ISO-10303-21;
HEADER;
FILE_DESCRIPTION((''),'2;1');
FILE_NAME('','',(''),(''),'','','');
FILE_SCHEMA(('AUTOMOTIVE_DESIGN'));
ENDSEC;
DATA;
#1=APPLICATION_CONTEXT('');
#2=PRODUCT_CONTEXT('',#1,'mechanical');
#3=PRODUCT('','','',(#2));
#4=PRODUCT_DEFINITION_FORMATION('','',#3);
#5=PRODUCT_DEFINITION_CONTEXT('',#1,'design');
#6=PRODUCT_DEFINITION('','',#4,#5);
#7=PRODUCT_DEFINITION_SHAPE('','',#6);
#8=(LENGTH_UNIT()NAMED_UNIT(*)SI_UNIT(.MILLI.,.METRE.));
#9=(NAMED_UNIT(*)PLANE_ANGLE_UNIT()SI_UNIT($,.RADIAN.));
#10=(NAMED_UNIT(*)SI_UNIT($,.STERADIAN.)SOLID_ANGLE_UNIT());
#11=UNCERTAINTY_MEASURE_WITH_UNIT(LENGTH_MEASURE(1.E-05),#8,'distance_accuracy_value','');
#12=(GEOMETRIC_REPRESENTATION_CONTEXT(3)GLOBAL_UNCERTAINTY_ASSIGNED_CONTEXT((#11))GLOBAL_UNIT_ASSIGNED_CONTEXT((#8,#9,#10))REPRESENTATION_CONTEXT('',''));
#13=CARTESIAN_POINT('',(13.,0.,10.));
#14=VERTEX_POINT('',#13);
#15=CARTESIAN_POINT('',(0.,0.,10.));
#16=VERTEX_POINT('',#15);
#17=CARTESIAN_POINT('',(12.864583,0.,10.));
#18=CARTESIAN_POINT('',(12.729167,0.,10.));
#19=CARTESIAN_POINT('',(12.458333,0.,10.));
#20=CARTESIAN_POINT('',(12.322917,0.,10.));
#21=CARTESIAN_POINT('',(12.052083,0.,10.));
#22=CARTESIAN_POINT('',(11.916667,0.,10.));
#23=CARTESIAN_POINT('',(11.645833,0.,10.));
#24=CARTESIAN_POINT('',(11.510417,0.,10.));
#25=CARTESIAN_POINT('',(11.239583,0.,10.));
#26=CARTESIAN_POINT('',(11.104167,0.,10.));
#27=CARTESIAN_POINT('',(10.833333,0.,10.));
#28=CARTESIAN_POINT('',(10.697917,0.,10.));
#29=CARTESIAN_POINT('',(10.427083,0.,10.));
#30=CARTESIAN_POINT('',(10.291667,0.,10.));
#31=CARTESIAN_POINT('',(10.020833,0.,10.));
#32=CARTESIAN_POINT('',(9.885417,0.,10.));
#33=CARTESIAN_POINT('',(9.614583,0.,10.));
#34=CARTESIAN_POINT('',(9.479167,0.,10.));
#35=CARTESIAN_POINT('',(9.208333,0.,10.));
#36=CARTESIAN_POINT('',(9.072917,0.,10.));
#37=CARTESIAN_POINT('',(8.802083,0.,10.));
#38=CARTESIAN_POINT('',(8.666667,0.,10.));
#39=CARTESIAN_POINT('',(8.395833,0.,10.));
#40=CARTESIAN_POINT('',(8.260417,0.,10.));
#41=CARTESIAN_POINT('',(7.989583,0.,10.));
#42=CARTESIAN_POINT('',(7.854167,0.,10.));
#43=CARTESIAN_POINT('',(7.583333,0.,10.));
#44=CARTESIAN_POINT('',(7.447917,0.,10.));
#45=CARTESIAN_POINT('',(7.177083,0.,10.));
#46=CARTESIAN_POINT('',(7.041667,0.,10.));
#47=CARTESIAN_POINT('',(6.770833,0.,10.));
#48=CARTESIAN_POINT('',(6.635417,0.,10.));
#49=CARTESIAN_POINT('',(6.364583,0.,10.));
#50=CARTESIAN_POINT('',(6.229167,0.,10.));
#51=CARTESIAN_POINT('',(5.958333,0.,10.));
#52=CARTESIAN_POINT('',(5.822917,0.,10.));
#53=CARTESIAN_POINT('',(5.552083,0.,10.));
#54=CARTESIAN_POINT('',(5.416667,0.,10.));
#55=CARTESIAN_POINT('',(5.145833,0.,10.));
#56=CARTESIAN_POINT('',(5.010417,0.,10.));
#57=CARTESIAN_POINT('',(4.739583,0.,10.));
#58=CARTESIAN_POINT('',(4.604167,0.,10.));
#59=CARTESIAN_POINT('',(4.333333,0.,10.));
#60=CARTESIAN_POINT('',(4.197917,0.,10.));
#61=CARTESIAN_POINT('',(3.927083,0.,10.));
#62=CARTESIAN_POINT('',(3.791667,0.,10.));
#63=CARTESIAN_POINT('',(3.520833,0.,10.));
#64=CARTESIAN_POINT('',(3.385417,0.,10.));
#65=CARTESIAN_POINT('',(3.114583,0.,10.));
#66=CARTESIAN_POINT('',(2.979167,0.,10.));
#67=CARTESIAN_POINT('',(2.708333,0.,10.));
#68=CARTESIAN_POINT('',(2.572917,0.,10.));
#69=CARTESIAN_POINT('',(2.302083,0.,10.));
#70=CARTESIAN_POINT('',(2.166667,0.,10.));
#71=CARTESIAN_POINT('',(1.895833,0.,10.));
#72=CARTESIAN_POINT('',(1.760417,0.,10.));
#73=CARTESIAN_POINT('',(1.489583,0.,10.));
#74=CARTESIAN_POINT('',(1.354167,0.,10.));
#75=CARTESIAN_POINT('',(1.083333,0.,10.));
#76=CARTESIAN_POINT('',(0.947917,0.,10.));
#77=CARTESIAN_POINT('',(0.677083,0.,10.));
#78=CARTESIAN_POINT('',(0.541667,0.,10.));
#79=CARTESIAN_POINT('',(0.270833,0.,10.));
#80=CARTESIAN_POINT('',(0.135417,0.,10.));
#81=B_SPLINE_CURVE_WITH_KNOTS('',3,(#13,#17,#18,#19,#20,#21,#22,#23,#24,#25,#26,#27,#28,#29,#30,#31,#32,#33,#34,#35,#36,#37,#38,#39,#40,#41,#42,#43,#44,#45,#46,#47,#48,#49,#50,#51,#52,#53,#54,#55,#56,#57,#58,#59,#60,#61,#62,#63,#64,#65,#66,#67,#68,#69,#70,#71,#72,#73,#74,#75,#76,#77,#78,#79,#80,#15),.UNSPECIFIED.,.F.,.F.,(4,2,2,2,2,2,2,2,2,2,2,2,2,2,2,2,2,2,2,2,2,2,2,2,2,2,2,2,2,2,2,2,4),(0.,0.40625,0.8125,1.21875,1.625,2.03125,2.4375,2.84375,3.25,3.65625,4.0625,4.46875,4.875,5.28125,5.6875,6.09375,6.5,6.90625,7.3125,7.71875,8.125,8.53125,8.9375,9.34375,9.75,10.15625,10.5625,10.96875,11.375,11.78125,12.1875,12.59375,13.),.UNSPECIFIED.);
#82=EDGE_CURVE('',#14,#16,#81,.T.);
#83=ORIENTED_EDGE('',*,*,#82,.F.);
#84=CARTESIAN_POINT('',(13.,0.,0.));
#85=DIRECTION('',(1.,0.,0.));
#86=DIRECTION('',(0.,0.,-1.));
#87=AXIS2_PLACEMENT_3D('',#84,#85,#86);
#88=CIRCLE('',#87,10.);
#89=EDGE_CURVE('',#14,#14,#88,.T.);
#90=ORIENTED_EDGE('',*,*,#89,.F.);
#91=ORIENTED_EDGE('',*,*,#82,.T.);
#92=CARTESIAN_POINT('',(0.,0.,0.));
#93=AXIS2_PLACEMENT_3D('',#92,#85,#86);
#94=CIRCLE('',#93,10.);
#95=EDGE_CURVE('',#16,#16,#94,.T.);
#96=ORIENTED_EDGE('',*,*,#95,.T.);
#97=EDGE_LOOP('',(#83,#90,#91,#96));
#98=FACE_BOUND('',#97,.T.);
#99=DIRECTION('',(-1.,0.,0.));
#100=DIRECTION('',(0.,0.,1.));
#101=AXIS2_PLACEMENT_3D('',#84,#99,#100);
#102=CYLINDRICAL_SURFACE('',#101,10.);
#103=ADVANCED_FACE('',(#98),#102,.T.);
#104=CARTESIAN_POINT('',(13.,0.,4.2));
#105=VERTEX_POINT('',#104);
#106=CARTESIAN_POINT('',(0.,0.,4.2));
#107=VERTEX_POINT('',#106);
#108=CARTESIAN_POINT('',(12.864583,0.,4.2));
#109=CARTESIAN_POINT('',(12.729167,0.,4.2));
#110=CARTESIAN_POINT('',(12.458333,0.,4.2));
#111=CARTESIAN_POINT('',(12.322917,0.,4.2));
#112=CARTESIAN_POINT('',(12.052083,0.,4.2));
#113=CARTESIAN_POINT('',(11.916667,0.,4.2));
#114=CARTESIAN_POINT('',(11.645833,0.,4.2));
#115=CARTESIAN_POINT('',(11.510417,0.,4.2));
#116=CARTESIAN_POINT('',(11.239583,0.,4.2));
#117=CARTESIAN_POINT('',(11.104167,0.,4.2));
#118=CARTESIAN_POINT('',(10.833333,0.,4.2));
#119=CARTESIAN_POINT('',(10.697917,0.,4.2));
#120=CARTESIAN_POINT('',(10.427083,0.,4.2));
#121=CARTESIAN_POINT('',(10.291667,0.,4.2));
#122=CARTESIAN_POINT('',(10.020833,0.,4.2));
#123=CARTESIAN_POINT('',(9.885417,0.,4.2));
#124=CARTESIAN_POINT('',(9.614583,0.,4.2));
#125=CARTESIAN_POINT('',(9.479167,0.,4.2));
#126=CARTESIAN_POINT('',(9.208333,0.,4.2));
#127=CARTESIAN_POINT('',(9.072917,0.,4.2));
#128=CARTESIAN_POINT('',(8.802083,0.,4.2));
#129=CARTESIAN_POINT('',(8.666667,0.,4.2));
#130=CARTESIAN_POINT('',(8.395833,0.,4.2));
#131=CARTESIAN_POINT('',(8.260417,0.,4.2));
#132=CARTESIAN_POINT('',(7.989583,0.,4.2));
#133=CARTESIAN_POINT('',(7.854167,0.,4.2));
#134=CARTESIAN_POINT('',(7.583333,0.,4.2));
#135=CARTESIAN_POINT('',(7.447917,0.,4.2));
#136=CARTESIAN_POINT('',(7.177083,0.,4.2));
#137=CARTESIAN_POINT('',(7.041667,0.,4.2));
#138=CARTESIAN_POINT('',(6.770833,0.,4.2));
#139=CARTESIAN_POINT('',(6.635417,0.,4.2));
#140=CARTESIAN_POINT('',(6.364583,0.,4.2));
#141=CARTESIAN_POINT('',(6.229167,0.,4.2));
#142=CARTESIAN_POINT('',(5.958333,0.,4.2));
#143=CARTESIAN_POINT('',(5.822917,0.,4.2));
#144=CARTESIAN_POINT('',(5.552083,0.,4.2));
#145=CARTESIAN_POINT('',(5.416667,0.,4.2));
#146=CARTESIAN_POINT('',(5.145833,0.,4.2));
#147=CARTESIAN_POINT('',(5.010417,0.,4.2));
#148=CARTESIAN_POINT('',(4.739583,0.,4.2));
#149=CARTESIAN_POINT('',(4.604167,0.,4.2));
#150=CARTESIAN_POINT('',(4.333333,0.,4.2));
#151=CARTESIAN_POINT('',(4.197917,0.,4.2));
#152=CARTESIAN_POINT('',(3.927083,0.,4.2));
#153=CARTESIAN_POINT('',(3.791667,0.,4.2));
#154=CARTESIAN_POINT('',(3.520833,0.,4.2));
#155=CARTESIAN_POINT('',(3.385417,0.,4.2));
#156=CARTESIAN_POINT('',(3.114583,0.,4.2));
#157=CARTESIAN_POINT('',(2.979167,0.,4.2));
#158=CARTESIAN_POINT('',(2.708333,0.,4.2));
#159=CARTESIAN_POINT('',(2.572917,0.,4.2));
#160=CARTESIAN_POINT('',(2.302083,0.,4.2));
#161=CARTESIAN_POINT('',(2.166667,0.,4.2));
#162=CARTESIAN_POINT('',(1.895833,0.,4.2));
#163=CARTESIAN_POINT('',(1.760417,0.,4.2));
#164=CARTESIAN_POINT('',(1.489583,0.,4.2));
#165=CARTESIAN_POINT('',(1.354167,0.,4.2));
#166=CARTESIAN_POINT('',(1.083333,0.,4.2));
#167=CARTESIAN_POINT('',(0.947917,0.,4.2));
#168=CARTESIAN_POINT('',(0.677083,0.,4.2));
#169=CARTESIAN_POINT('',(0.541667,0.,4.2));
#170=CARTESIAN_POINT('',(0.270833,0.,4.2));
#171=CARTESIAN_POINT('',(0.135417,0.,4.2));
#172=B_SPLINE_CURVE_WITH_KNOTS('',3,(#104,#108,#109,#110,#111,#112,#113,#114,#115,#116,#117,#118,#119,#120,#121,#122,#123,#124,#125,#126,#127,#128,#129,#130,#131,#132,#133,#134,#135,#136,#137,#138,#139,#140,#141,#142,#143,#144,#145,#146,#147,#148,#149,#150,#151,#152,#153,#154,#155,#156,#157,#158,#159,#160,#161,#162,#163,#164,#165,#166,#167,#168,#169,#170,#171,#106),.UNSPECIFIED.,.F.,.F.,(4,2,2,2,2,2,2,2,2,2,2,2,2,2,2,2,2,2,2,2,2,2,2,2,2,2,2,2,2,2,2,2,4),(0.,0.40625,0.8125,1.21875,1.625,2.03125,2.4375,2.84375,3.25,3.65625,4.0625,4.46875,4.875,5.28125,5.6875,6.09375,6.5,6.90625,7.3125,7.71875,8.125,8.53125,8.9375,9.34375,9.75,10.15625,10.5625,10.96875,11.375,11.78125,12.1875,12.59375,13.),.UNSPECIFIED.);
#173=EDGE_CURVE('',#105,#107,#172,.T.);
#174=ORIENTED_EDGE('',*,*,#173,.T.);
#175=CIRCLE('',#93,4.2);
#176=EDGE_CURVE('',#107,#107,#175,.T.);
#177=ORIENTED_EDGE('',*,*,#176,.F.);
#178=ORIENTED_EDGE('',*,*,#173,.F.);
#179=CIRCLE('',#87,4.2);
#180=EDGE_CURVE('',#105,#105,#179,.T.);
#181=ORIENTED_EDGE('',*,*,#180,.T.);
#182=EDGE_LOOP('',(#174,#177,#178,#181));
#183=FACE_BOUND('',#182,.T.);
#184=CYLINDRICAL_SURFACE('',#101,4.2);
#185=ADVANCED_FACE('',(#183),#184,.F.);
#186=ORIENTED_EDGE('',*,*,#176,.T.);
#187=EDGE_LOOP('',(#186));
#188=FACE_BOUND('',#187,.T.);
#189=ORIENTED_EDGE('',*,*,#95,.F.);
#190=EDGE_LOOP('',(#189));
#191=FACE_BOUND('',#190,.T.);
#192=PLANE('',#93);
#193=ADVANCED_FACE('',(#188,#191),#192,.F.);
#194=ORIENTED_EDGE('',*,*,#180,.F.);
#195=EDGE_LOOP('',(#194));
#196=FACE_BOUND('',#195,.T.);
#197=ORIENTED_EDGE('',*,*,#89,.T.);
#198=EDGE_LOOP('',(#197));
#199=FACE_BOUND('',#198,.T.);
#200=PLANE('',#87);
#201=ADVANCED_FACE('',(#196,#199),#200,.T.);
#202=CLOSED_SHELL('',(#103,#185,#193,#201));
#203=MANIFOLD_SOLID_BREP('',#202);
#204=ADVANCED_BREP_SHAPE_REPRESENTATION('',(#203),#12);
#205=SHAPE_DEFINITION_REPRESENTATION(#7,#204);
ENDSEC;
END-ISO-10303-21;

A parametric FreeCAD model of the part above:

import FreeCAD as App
import Part
import Sketcher

V = App.Vector

doc = App.newDocument("Part")
body = doc.addObject("PartDesign::Body", "Body")

# Sketch on YZ plane
sketch1 = body.newObject("Sketcher::SketchObject", "Sketch")
sketch1.AttachmentSupport = (doc.getObject("YZ_Plane"), [""])
sketch1.MapMode = "FlatFace"
sketch1.addGeometry(Part.Circle(V(0, 0, 0), V(0, 0, 1), 10), False)
sketch1.addGeometry(Part.Circle(V(0, 0, 0), V(0, 0, 1), 4.2), False)
sketch1.addConstraint(Sketcher.Constraint("Coincident", 0, 3, -1, 1))
sketch1.addConstraint(Sketcher.Constraint("Coincident", 1, 3, -1, 1))
sketch1.addConstraint(Sketcher.Constraint("Diameter", 0, 20.0))
sketch1.addConstraint(Sketcher.Constraint("Diameter", 1, 8.4))
pad1 = body.newObject("PartDesign::Pad", "Pad")
pad1.Profile = sketch1
pad1.Length = 13

doc.recompute()
